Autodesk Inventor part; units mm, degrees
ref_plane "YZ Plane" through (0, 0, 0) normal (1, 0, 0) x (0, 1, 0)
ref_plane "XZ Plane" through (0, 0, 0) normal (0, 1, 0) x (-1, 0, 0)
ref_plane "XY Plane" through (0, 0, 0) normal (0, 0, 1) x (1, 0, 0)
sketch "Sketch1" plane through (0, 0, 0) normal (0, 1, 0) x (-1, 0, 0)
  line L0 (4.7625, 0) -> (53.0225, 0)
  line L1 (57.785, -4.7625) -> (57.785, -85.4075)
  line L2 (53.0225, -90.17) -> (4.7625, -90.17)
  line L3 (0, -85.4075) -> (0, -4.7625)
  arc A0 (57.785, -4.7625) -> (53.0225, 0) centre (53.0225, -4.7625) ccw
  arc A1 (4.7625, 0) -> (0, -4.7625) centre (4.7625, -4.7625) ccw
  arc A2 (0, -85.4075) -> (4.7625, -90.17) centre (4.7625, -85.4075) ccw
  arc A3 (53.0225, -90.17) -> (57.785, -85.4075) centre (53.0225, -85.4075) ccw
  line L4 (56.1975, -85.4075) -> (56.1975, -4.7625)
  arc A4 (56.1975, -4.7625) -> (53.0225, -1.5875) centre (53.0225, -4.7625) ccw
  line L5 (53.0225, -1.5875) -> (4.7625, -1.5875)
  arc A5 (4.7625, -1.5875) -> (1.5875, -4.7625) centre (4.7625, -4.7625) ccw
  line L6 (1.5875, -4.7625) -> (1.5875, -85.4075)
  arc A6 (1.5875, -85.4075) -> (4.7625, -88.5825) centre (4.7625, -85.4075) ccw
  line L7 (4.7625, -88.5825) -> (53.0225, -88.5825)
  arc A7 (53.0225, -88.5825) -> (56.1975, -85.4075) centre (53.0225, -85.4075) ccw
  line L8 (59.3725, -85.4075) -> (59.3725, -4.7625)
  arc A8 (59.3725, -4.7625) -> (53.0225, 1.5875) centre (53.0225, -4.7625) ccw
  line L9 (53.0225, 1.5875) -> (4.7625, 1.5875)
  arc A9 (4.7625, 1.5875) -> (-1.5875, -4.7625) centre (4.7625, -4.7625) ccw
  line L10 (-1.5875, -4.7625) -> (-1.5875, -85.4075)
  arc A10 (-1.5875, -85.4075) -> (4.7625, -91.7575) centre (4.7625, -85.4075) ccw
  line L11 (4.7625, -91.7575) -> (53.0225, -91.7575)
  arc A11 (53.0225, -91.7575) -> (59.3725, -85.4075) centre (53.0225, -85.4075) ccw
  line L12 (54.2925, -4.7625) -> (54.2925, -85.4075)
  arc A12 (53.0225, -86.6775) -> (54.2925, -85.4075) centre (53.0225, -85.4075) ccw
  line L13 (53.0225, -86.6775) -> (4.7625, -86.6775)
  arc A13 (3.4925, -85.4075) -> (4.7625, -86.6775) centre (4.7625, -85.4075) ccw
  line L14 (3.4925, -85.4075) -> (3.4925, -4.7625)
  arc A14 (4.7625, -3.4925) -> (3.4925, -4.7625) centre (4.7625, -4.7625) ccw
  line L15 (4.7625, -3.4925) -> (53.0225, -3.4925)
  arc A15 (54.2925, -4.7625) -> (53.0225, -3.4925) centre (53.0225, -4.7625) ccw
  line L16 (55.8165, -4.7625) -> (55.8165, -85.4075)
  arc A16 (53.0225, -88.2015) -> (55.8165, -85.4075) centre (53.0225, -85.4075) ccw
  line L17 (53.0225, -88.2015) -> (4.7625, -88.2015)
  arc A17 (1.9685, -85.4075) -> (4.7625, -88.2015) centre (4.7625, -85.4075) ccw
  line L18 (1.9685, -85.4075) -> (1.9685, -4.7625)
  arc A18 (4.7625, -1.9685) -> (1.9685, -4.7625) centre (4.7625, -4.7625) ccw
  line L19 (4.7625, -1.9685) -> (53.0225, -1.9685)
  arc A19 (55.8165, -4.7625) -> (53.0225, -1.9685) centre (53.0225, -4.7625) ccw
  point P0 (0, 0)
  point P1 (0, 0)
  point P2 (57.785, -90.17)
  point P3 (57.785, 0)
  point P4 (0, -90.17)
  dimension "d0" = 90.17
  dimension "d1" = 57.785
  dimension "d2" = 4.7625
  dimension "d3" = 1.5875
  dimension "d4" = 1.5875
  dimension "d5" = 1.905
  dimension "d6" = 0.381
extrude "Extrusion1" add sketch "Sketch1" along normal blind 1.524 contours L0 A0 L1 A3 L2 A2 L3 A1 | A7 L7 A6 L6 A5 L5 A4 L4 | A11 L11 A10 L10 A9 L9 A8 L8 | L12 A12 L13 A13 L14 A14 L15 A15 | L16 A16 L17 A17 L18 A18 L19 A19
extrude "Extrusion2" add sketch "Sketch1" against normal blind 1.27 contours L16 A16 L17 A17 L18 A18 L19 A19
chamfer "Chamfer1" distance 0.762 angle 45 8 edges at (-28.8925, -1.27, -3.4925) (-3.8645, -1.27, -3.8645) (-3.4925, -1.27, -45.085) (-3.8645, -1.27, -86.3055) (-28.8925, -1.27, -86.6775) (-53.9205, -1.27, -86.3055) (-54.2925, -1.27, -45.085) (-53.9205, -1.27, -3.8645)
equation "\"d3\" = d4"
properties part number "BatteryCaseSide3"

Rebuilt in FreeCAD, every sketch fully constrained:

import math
import FreeCAD as App
import Part
import Sketcher

V = App.Vector
Q = App.Units.Quantity


def edges_at(feature, points):
    """Names of the edges that pass closest to the given points."""
    edges = feature.Shape.Edges
    near = lambda p: min(range(len(edges)), key=lambda i: edges[i].distToShape(Part.Vertex(*p))[0])
    return sorted({f"Edge{near(p) + 1}" for p in points})

doc = App.newDocument("Part")
params = doc.addObject("Spreadsheet::Sheet", "Params")
for row, (alias, value) in enumerate([
    ("sketch1_radius", "0.25 in"),
    ("sketch1_width", "1.9 in"),
    ("sketch1_height", "3.175 in"),
    ("pad1_length", "0.06 in"),
    ("sketch2_radius", "0.11 in"),
    ("sketch2_radius2", "0.05 in"),
    ("sketch2_width", "1.9 in"),
    ("sketch2_height", "3.175 in"),
    ("pad2_length", "0.05 in"),
    ("chamfer_size", "0.03 in"),
], start=1):
    params.set(f"A{row}", alias)
    params.set(f"B{row}", "=" + value)
    params.setAlias(f"B{row}", alias)

body = doc.addObject("PartDesign::Body", "Body")

# Sketch on XZ plane
sketch1 = body.newObject("Sketcher::SketchObject", "Sketch")
sketch1.AttachmentSupport = (doc.getObject("XZ_Plane"), [""])
sketch1.MapMode = "FlatFace"
sketch1.addGeometry([
    Part.ArcOfCircle(Part.Circle(V(-53, -85, 0), V(0, 0, 1), 6), math.radians(180), math.radians(270)),  # 0
    Part.LineSegment(V(-59, -85, 0), V(-59, -5, 0)),  # 1
    Part.ArcOfCircle(Part.Circle(V(-53, -5, 0), V(0, 0, 1), 6), math.radians(90), math.radians(180)),  # 2
    Part.LineSegment(V(-53, 2, 0), V(-5, 2, 0)),  # 3
    Part.ArcOfCircle(Part.Circle(V(-5, -5, 0), V(0, 0, 1), 6), math.radians(0), math.radians(90)),  # 4
    Part.LineSegment(V(2, -5, 0), V(2, -85, 0)),  # 5
    Part.ArcOfCircle(Part.Circle(V(-5, -85, 0), V(0, 0, 1), 6), math.radians(-90), math.radians(0)),  # 6
    Part.LineSegment(V(-5, -92, 0), V(-53, -92, 0)),  # 7
], False)
sketch1.addConstraint([
    Sketcher.Constraint("Tangent", 0, 1, 1, 1),
    Sketcher.Constraint("Tangent", 1, 2, 2, 2),
    Sketcher.Constraint("Tangent", 2, 1, 3, 1),
    Sketcher.Constraint("Tangent", 3, 2, 4, 2),
    Sketcher.Constraint("Tangent", 4, 1, 5, 1),
    Sketcher.Constraint("Tangent", 5, 2, 6, 2),
    Sketcher.Constraint("Tangent", 6, 1, 7, 1),
    Sketcher.Constraint("Tangent", 7, 2, 0, 2),
    Sketcher.Constraint("Vertical", 1),
    Sketcher.Constraint("Horizontal", 3),
    Sketcher.Constraint("Vertical", 5),
    Sketcher.Constraint("Horizontal", 7),
    Sketcher.Constraint("Equal", 0, 2),
    Sketcher.Constraint("Equal", 2, 4),
    Sketcher.Constraint("Equal", 4, 6),
    Sketcher.Constraint("Radius", 0, Q("0.25 in")),
    Sketcher.Constraint("DistanceX", 3, 1, 3, 2, Q("1.9 in")),
    Sketcher.Constraint("DistanceY", 2, 3, -1, 1, Q("0.1875 in")),
    Sketcher.Constraint("DistanceX", 4, 3, -1, 1, Q("0.1875 in")),
    Sketcher.Constraint("DistanceY", 1, 1, 1, 2, Q("3.175 in")),
])
sketch1.setExpression("Constraints[15]", "Params.sketch1_radius")
sketch1.setExpression("Constraints[16]", "Params.sketch1_width")
sketch1.setExpression("Constraints[19]", "Params.sketch1_height")
pad1 = body.newObject("PartDesign::Pad", "Pad")
pad1.Profile = sketch1
pad1.setExpression("Length", "Params.pad1_length")
pad1.Reversed = True

# Sketch on XZ plane
sketch2 = body.newObject("Sketcher::SketchObject", "Sketch001")
sketch2.AttachmentSupport = (doc.getObject("XZ_Plane"), [""])
sketch2.MapMode = "FlatFace"
sketch2.addGeometry([
    Part.LineSegment(V(-55.8, -85.4, 0), V(-55.8, -4.8, 0)),  # 0
    Part.ArcOfCircle(Part.Circle(V(-53, -4.8, 0), V(0, 0, 1), 2.8), math.radians(90), math.radians(180)),  # 1
    Part.LineSegment(V(-53, -2, 0), V(-4.8, -2, 0)),  # 2
    Part.ArcOfCircle(Part.Circle(V(-4.8, -4.8, 0), V(0, 0, 1), 2.8), math.radians(0), math.radians(90)),  # 3
    Part.LineSegment(V(-2, -4.8, 0), V(-2, -85.4, 0)),  # 4
    Part.ArcOfCircle(Part.Circle(V(-4.8, -85.4, 0), V(0, 0, 1), 2.8), math.radians(-90), math.radians(0)),  # 5
    Part.LineSegment(V(-4.8, -88.2, 0), V(-53, -88.2, 0)),  # 6
    Part.ArcOfCircle(Part.Circle(V(-53, -85.4, 0), V(0, 0, 1), 2.8), math.radians(180), math.radians(270)),  # 7
    Part.ArcOfCircle(Part.Circle(V(-53, -4.8, 0), V(0, 0, 1), 1.3), math.radians(90), math.radians(180)),  # 8
    Part.LineSegment(V(-54.3, -4.8, 0), V(-54.3, -85.4, 0)),  # 9
    Part.ArcOfCircle(Part.Circle(V(-53, -85.4, 0), V(0, 0, 1), 1.3), math.radians(180), math.radians(270)),  # 10
    Part.LineSegment(V(-53, -86.7, 0), V(-4.8, -86.7, 0)),  # 11
    Part.ArcOfCircle(Part.Circle(V(-4.8, -85.4, 0), V(0, 0, 1), 1.3), math.radians(-90), math.radians(0)),  # 12
    Part.LineSegment(V(-3.5, -85.4, 0), V(-3.5, -4.8, 0)),  # 13
    Part.ArcOfCircle(Part.Circle(V(-4.8, -4.8, 0), V(0, 0, 1), 1.3), math.radians(0), math.radians(90)),  # 14
    Part.LineSegment(V(-4.8, -3.5, 0), V(-53, -3.5, 0)),  # 15
], False)
sketch2.addConstraint([
    Sketcher.Constraint("Tangent", 0, 2, 1, 2),
    Sketcher.Constraint("Tangent", 1, 1, 2, 1),
    Sketcher.Constraint("Tangent", 2, 2, 3, 2),
    Sketcher.Constraint("Tangent", 3, 1, 4, 1),
    Sketcher.Constraint("Tangent", 4, 2, 5, 2),
    Sketcher.Constraint("Tangent", 5, 1, 6, 1),
    Sketcher.Constraint("Tangent", 6, 2, 7, 2),
    Sketcher.Constraint("Tangent", 7, 1, 0, 1),
    Sketcher.Constraint("Tangent", 8, 2, 9, 1),
    Sketcher.Constraint("Tangent", 9, 2, 10, 1),
    Sketcher.Constraint("Tangent", 10, 2, 11, 1),
    Sketcher.Constraint("Tangent", 11, 2, 12, 1),
    Sketcher.Constraint("Tangent", 12, 2, 13, 1),
    Sketcher.Constraint("Tangent", 13, 2, 14, 1),
    Sketcher.Constraint("Tangent", 14, 2, 15, 1),
    Sketcher.Constraint("Tangent", 15, 2, 8, 1),
    Sketcher.Constraint("Vertical", 0),
    Sketcher.Constraint("Horizontal", 2),
    Sketcher.Constraint("Vertical", 4),
    Sketcher.Constraint("Horizontal", 6),
    Sketcher.Constraint("Vertical", 9),
    Sketcher.Constraint("Horizontal", 11),
    Sketcher.Constraint("Vertical", 13),
    Sketcher.Constraint("Horizontal", 15),
    Sketcher.Constraint("Coincident", 8, 3, 1, 3),
    Sketcher.Constraint("Coincident", 10, 3, 7, 3),
    Sketcher.Constraint("Coincident", 12, 3, 5, 3),
    Sketcher.Constraint("Equal", 1, 3),
    Sketcher.Constraint("Equal", 3, 5),
    Sketcher.Constraint("Equal", 5, 7),
    Sketcher.Constraint("Equal", 12, 14),
    Sketcher.Constraint("Radius", 1, Q("0.11 in")),
    Sketcher.Constraint("Radius", 8, Q("0.05 in")),
    Sketcher.Constraint("DistanceX", 2, 1, 2, 2, Q("1.9 in")),
    Sketcher.Constraint("DistanceY", 1, 3, -1, 1, Q("0.1875 in")),
    Sketcher.Constraint("DistanceX", 3, 3, -1, 1, Q("0.1875 in")),
    Sketcher.Constraint("DistanceY", 0, 1, 0, 2, Q("3.175 in")),
])
sketch2.setExpression("Constraints[31]", "Params.sketch2_radius")
sketch2.setExpression("Constraints[32]", "Params.sketch2_radius2")
sketch2.setExpression("Constraints[33]", "Params.sketch2_width")
sketch2.setExpression("Constraints[36]", "Params.sketch2_height")
pad2 = body.newObject("PartDesign::Pad", "Pad001")
pad2.Profile = sketch2
pad2.setExpression("Length", "Params.pad2_length")
doc.recompute()

chamfer = body.newObject("PartDesign::Chamfer", "Chamfer")
chamfer.Base = (pad2, edges_at(pad2, [
    (-28.892, -1.27, -3.493),
    (-3.865, -1.27, -3.865),
    (-3.493, -1.27, -45.085),
    (-3.865, -1.27, -86.305),
    (-28.892, -1.27, -86.677),
    (-53.92, -1.27, -86.305),
    (-54.292, -1.27, -45.085),
    (-53.92, -1.27, -3.865),
]))
chamfer.setExpression("Size", "Params.chamfer_size")

doc.recompute()
